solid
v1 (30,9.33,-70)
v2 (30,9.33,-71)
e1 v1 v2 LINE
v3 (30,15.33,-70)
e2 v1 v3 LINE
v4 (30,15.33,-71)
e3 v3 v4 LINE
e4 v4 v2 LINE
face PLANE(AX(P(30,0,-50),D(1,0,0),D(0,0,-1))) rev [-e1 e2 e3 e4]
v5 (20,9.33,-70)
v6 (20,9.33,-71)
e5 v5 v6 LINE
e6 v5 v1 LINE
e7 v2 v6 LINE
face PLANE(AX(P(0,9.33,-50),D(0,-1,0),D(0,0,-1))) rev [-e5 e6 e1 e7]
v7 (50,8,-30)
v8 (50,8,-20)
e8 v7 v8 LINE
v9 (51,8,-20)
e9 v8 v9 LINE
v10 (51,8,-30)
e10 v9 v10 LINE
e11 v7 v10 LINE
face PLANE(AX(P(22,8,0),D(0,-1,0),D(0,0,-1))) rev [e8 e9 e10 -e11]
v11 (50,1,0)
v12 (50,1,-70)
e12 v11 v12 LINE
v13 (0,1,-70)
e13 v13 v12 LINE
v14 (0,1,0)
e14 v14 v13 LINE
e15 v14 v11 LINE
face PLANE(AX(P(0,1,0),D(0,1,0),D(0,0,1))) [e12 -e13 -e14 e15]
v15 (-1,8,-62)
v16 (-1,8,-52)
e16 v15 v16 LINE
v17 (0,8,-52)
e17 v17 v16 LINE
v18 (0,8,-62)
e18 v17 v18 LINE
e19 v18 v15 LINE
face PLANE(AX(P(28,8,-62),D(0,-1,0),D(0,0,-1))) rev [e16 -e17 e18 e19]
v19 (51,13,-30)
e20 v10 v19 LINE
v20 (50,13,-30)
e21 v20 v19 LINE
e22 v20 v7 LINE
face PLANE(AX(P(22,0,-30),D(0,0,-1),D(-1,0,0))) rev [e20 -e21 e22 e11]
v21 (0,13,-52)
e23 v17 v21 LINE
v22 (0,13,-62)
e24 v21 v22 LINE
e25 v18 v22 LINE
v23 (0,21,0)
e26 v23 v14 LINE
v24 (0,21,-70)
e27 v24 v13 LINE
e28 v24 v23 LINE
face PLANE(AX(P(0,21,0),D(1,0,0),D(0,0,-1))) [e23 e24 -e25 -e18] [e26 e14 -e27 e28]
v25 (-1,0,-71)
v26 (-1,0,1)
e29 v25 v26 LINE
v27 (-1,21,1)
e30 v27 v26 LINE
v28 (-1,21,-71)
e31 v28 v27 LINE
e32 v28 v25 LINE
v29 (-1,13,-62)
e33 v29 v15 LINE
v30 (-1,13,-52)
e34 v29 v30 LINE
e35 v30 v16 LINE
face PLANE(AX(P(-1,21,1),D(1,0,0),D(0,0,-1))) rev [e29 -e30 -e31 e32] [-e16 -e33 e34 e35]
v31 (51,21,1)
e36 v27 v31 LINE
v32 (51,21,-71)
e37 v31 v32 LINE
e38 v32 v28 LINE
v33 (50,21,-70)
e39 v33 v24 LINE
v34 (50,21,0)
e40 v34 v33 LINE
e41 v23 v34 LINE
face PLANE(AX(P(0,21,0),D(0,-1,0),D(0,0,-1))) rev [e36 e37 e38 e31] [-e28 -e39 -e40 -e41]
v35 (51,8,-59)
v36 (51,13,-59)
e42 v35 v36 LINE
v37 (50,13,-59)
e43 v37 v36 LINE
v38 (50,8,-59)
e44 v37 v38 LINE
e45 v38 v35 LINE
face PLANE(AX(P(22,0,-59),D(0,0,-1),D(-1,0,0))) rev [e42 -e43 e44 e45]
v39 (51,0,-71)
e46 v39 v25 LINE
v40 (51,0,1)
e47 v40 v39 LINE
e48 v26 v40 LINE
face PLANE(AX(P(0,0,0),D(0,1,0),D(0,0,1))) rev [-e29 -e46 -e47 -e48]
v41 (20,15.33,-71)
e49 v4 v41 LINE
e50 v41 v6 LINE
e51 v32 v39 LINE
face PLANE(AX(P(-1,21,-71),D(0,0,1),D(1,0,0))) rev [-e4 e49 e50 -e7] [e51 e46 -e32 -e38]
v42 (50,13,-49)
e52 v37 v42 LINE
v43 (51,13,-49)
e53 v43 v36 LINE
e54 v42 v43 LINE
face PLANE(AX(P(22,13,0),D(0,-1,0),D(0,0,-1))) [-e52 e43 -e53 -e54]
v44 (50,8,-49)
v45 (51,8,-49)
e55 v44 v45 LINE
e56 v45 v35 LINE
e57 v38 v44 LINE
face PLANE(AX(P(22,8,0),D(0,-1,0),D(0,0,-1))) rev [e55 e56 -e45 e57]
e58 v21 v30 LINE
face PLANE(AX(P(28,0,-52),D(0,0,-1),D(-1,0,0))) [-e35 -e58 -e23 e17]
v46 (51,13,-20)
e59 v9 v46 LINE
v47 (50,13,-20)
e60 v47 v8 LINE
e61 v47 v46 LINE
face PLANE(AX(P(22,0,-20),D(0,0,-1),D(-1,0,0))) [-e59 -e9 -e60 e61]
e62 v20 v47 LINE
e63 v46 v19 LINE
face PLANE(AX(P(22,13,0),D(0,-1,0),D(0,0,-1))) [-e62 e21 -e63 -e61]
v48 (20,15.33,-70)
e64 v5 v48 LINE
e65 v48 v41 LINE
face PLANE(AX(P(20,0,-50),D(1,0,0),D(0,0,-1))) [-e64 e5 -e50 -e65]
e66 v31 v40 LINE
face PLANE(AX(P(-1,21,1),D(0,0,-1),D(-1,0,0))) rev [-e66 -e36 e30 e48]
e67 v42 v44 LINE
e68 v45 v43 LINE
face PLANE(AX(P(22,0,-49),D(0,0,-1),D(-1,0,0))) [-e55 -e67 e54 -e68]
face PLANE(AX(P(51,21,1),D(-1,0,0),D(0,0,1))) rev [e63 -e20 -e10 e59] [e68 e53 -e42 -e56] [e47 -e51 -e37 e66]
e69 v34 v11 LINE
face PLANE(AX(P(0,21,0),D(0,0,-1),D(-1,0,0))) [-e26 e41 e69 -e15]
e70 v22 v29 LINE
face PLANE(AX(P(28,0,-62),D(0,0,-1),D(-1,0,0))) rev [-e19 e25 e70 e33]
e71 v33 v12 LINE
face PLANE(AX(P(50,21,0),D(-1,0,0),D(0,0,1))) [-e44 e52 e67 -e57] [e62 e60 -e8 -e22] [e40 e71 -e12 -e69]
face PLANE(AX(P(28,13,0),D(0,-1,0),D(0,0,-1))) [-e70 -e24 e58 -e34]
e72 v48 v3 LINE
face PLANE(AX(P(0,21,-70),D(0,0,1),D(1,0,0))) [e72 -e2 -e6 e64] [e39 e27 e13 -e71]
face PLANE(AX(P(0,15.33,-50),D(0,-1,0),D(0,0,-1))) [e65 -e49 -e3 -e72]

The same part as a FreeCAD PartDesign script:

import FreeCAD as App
import Part
import Sketcher
from FreeCAD import Vector
Q = App.Units.Quantity


def add_polygon(sketch, points):
    """Adds a closed chain of lines whose ends are joined by coincident constraints."""
    first, n = sketch.GeometryCount, len(points)
    for a, b in zip(points, points[1:] + points[:1]):
        sketch.addGeometry(Part.LineSegment(App.Vector(*a, 0), App.Vector(*b, 0)), False)
    for i in range(n):
        sketch.addConstraint(Sketcher.Constraint("Coincident", first + i, 2, first + (i + 1) % n, 1))

doc = App.newDocument("Part")
body = doc.addObject("PartDesign::Body", "Body")

sketch1 = body.newObject("Sketcher::SketchObject", "Sketch")
sketch1.AttachmentSupport = (doc.getObject("XZ_Plane"), [""])
sketch1.MapMode = "FlatFace"
add_polygon(sketch1, [(0, -70), (0, 0), (50, 0), (50, -70)])
sketch1.addConstraint([
    Sketcher.Constraint("Vertical", 0),
    Sketcher.Constraint("Horizontal", 1),
    Sketcher.Constraint("Vertical", 2),
    Sketcher.Constraint("Horizontal", 3),
    Sketcher.Constraint("Coincident", 0, 2, -1, 1),
    Sketcher.Constraint("DistanceX", 1, 1, 1, 2, Q("50 mm")),
    Sketcher.Constraint("DistanceY", 0, 1, 0, 2, Q("70 mm")),
])
pad1 = body.newObject("PartDesign::Pad", "Pad")
pad1.Profile = sketch1
pad1.Length = 1
pad1.Reversed = True

sketch2 = body.newObject("Sketcher::SketchObject", "Sketch001")
sketch2.AttachmentSupport = (doc.getObject("XZ_Plane"), [""])
sketch2.MapMode = "FlatFace"
add_polygon(sketch2, [(-1, -71), (-1, 1), (51, 1), (51, -71)])
add_polygon(sketch2, [(50, 0), (0, 0), (0, -70), (50, -70)])
sketch2.addConstraint([
    Sketcher.Constraint("Vertical", 0),
    Sketcher.Constraint("Horizontal", 1),
    Sketcher.Constraint("Vertical", 2),
    Sketcher.Constraint("Horizontal", 3),
    Sketcher.Constraint("Horizontal", 4),
    Sketcher.Constraint("Vertical", 5),
    Sketcher.Constraint("Horizontal", 6),
    Sketcher.Constraint("Vertical", 7),
    Sketcher.Constraint("Coincident", 4, 2, -1, 1),
    Sketcher.Constraint("DistanceX", 1, 1, 1, 2, Q("52 mm")),
    Sketcher.Constraint("DistanceX", 4, 2, 4, 1, Q("50 mm")),
    Sketcher.Constraint("DistanceY", 0, 1, 0, 2, Q("72 mm")),
    Sketcher.Constraint("DistanceY", 5, 2, 5, 1, Q("70 mm")),
    Sketcher.Constraint("DistanceX", 0, 2, -1, 1, Q("1 mm")),
    Sketcher.Constraint("DistanceY", -1, 1, 0, 2, Q("1 mm")),
])
pad2 = body.newObject("PartDesign::Pad", "Pad001")
pad2.Profile = sketch2
pad2.Length = 21
pad2.Reversed = True

sketch3 = body.newObject("Sketcher::SketchObject", "Sketch002")
sketch3.AttachmentSupport = (doc.getObject("XY_Plane"), [""])
sketch3.MapMode = "FlatFace"
sketch3.AttachmentOffset = App.Placement(Vector(0, 0, -71), App.Rotation())
add_polygon(sketch3, [(30, 15), (30, 9), (20, 9), (20, 15)])
sketch3.addConstraint([
    Sketcher.Constraint("Vertical", 0),
    Sketcher.Constraint("Horizontal", 1),
    Sketcher.Constraint("Vertical", 2),
    Sketcher.Constraint("Horizontal", 3),
    Sketcher.Constraint("DistanceX", 1, 2, 1, 1, Q("10 mm")),
    Sketcher.Constraint("DistanceY", 0, 2, 0, 1, Q("6 mm")),
    Sketcher.Constraint("DistanceX", -1, 1, 0, 2, Q("30 mm")),
    Sketcher.Constraint("DistanceY", -1, 1, 0, 2, Q("9.33 mm")),
])
pocket1 = body.newObject("PartDesign::Pocket", "Pocket")
pocket1.Profile = sketch3
pocket1.Length = 21
pocket1.Reversed = True

sketch4 = body.newObject("Sketcher::SketchObject", "Sketch003")
sketch4.AttachmentSupport = (doc.getObject("YZ_Plane"), [""])
sketch4.MapMode = "FlatFace"
sketch4.AttachmentOffset = App.Placement(Vector(0, 0, 51), App.Rotation())
add_polygon(sketch4, [(8, -20), (8, -30), (13, -30), (13, -20)])
add_polygon(sketch4, [(8, -49), (8, -59), (13, -59), (13, -49)])
sketch4.addConstraint([
    Sketcher.Constraint("Vertical", 0),
    Sketcher.Constraint("Horizontal", 1),
    Sketcher.Constraint("Vertical", 2),
    Sketcher.Constraint("Horizontal", 3),
    Sketcher.Constraint("Vertical", 4),
    Sketcher.Constraint("Horizontal", 5),
    Sketcher.Constraint("Vertical", 6),
    Sketcher.Constraint("Horizontal", 7),
    Sketcher.Constraint("Vertical", 3, 2, 4, 2),
    Sketcher.Constraint("Vertical", 2, 2, 5, 2),
    Sketcher.Constraint("Equal", 2, 4),
    Sketcher.Constraint("DistanceX", 1, 1, 1, 2, Q("5 mm")),
    Sketcher.Constraint("DistanceY", 0, 2, 0, 1, Q("10 mm")),
    Sketcher.Constraint("DistanceX", -1, 1, 0, 2, Q("8 mm")),
    Sketcher.Constraint("DistanceY", 0, 2, -1, 1, Q("30 mm")),
    Sketcher.Constraint("DistanceY", 4, 2, -1, 1, Q("59 mm")),
])
pocket2 = body.newObject("PartDesign::Pocket", "Pocket001")
pocket2.Profile = sketch4
pocket2.Length = 29

sketch5 = body.newObject("Sketcher::SketchObject", "Sketch004")
sketch5.AttachmentSupport = (doc.getObject("YZ_Plane"), [""])
sketch5.MapMode = "FlatFace"
sketch5.AttachmentOffset = App.Placement(Vector(0, 0, -1), App.Rotation())
add_polygon(sketch5, [(13, -62), (8, -62), (8, -52), (13, -52)])
sketch5.addConstraint([
    Sketcher.Constraint("Horizontal", 0),
    Sketcher.Constraint("Vertical", 1),
    Sketcher.Constraint("Horizontal", 2),
    Sketcher.Constraint("Vertical", 3),
    Sketcher.Constraint("DistanceX", 0, 2, 0, 1, Q("5 mm")),
    Sketcher.Constraint("DistanceY", 1, 1, 1, 2, Q("10 mm")),
    Sketcher.Constraint("DistanceX", -1, 1, 0, 2, Q("8 mm")),
    Sketcher.Constraint("DistanceY", 0, 2, -1, 1, Q("62 mm")),
])
pocket3 = body.newObject("PartDesign::Pocket", "Pocket002")
pocket3.Profile = sketch5
pocket3.Length = 29
pocket3.Reversed = True

doc.recompute()
